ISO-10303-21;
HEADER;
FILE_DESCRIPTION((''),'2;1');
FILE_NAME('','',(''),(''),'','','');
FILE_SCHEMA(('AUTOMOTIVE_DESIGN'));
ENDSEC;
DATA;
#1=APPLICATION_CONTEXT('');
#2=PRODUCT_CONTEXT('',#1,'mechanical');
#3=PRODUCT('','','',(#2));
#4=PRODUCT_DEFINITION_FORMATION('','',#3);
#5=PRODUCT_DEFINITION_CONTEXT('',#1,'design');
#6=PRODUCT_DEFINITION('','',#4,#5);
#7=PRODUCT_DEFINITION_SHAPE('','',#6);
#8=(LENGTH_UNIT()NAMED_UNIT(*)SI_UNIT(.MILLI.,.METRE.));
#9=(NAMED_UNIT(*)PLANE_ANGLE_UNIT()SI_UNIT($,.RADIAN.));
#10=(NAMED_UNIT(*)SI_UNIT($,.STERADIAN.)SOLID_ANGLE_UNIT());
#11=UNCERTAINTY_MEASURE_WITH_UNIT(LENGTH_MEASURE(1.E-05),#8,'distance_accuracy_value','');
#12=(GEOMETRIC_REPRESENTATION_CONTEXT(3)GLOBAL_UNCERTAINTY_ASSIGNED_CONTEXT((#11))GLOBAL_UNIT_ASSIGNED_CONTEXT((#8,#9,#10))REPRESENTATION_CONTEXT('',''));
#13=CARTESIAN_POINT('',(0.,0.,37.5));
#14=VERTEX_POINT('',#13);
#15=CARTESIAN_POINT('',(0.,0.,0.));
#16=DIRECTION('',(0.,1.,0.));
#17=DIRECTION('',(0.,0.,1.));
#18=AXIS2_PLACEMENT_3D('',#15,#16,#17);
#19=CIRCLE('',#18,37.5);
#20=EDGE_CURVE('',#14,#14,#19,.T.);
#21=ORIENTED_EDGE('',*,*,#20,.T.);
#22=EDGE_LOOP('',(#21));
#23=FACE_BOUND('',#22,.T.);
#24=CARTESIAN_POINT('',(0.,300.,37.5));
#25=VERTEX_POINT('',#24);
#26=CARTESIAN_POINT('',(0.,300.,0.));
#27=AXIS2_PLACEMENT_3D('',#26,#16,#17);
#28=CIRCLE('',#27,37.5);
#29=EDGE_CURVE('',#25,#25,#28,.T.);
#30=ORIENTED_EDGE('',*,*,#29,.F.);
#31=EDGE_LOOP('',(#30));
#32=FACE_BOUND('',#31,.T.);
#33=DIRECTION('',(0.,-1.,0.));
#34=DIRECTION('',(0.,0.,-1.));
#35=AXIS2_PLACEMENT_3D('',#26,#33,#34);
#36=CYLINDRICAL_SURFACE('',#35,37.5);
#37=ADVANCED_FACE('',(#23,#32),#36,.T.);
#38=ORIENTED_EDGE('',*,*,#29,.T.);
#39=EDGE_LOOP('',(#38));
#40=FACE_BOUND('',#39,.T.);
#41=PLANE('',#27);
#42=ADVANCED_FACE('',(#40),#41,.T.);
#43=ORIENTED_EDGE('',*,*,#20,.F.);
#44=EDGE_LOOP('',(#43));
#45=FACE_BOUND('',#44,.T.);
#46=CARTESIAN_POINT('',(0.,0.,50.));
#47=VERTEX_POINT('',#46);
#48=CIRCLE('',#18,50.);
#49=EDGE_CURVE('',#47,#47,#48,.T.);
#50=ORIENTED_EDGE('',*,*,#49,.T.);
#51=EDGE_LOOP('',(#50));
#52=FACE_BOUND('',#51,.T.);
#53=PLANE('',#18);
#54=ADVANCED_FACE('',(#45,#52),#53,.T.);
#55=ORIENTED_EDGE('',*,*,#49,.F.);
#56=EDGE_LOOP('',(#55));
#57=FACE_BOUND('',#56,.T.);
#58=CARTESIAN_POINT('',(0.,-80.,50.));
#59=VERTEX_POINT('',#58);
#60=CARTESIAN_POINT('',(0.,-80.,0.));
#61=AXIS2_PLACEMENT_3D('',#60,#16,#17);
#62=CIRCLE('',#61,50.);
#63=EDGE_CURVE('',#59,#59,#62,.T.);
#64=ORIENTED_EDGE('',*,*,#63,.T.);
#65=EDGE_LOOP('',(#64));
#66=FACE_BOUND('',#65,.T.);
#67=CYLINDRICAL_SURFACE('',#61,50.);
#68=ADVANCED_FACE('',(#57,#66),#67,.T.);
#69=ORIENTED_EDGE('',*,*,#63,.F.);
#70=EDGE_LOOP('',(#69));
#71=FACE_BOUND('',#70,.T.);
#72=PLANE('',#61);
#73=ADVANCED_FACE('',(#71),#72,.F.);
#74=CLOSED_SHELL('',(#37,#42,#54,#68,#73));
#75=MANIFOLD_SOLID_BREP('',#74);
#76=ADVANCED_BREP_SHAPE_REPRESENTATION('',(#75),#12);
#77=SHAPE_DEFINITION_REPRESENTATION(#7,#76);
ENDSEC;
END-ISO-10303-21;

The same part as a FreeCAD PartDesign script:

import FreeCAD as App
import Part
import Sketcher

doc = App.newDocument("Part")
body = doc.addObject("PartDesign::Body", "Body")

sketch1 = doc.addObject("Sketcher::SketchObject", "Sketch")
body.addObject(sketch1)
sketch1.AttachmentSupport = (doc.XZ_Plane, [""])
sketch1.MapMode = "FlatFace"
sketch1.addGeometry(Part.Circle(App.Vector(0, 0, 0), App.Vector(0, 0, 1), 37.5), False)
sketch1.addConstraint([
    Sketcher.Constraint("Coincident", 0, 3, -1, 1),
    Sketcher.Constraint("Diameter", 0, 75.0),
])
pad1 = doc.addObject("PartDesign::Pad", "Pad")
body.addObject(pad1)
pad1.Profile = sketch1
pad1.Length = 300
pad1.Reversed = True

sketch2 = doc.addObject("Sketcher::SketchObject", "Sketch001")
body.addObject(sketch2)
sketch2.AttachmentSupport = (doc.XZ_Plane, [""])
sketch2.MapMode = "FlatFace"
sketch2.addGeometry(Part.Circle(App.Vector(0, 0, 0), App.Vector(0, 0, 1), 50), False)
sketch2.addConstraint([
    Sketcher.Constraint("Coincident", 0, 3, -1, 1),
    Sketcher.Constraint("Diameter", 0, 100.0),
])
pad2 = doc.addObject("PartDesign::Pad", "Pad001")
body.addObject(pad2)
pad2.Profile = sketch2
pad2.Length = 80

doc.recompute()
